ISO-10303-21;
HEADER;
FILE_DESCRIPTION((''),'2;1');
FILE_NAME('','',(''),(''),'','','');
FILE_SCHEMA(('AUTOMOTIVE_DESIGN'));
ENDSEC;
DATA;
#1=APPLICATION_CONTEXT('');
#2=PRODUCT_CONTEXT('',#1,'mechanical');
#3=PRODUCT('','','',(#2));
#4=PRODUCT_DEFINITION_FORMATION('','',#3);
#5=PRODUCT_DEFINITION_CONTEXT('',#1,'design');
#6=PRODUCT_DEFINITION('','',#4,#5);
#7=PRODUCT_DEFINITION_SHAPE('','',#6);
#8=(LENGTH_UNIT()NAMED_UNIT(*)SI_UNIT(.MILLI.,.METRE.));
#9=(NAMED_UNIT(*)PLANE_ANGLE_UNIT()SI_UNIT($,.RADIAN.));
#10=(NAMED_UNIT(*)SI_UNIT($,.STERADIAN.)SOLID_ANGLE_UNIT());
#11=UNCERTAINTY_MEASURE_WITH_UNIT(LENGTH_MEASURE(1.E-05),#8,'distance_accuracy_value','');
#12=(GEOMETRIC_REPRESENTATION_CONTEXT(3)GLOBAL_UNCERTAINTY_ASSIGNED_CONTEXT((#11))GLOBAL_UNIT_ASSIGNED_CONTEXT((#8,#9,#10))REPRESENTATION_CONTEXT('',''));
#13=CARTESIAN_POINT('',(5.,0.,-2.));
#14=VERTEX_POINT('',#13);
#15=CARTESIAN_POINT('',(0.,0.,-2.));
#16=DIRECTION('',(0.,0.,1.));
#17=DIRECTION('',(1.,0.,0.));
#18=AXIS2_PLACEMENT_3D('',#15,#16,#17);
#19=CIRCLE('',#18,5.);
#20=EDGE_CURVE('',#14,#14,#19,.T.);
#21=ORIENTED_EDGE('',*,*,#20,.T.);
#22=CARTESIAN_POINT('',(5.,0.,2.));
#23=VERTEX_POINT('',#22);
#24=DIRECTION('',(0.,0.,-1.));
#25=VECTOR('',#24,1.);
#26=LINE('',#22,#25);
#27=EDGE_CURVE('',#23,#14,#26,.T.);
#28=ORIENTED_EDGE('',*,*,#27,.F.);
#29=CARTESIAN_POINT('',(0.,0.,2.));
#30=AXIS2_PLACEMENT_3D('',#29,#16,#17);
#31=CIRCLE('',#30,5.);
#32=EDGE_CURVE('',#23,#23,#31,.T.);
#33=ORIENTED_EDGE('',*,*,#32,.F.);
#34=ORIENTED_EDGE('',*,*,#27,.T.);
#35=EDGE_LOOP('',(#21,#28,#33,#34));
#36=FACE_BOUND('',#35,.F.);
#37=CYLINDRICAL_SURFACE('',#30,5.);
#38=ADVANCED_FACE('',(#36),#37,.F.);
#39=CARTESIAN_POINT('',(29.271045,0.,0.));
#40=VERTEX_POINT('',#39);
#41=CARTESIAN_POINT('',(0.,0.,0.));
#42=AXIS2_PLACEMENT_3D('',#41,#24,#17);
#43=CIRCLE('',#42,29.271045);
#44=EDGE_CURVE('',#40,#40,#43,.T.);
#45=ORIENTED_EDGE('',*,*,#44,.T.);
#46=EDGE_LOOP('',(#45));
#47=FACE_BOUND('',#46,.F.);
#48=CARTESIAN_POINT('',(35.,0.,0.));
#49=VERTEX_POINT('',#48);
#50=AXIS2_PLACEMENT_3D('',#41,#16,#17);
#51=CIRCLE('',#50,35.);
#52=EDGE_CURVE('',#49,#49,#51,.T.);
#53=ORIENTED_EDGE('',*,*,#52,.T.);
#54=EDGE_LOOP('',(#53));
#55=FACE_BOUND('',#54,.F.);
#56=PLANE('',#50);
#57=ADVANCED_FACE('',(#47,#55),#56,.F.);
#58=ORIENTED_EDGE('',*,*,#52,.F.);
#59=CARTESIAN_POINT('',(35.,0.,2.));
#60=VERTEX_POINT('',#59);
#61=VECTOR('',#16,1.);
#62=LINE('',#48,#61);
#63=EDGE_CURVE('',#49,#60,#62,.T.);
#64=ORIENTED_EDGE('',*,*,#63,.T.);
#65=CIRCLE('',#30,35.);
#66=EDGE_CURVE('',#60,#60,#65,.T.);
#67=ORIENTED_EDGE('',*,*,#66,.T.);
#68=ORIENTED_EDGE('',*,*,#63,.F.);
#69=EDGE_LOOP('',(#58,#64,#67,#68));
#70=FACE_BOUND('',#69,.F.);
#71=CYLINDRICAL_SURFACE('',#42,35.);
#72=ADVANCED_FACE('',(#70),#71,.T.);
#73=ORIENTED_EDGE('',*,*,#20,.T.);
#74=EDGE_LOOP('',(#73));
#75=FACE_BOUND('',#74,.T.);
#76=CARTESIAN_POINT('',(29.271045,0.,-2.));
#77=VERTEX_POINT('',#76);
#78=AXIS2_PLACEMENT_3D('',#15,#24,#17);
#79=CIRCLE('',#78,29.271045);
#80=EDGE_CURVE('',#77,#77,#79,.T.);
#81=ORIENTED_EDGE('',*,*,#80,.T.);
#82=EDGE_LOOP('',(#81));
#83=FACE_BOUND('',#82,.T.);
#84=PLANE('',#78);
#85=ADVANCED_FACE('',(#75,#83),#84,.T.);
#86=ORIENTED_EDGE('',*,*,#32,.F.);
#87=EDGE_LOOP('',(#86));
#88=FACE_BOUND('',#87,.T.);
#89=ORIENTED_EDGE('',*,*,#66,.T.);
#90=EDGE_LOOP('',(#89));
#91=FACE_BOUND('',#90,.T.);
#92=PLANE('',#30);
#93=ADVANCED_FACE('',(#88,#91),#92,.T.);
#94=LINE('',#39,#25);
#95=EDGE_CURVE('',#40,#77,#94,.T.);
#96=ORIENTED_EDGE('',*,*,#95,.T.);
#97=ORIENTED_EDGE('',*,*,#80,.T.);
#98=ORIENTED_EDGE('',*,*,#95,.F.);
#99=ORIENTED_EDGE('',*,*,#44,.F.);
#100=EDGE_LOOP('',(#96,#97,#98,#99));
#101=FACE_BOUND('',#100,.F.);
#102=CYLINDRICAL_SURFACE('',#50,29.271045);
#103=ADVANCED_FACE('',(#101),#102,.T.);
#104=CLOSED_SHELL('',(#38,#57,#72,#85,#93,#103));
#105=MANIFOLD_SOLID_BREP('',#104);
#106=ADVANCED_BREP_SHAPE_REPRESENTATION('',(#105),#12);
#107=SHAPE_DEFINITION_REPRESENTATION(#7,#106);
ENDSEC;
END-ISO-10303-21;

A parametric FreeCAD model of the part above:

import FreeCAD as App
import Part
import Sketcher

doc = App.newDocument("Part")
body = doc.addObject("PartDesign::Body", "Body")

# Sketch on XY plane
sketch1 = body.newObject("Sketcher::SketchObject", "Sketch")
sketch1.AttachmentSupport = (doc.getObject("XY_Plane"), [""])
sketch1.MapMode = "FlatFace"
sketch1.addGeometry(Part.Circle(App.Vector(0, 0, 0), App.Vector(0, 0, 1), 35), False)
sketch1.addConstraint(Sketcher.Constraint("Coincident", 0, 3, -1, 1))
sketch1.addConstraint(Sketcher.Constraint("Diameter", 0, 70.0))
pad1 = body.newObject("PartDesign::Pad", "Pad")
pad1.Profile = sketch1
pad1.Length = 2

# Sketch on XY plane
sketch2 = body.newObject("Sketcher::SketchObject", "Sketch001")
sketch2.AttachmentSupport = (doc.getObject("XY_Plane"), [""])
sketch2.MapMode = "FlatFace"
sketch2.addGeometry(Part.Circle(App.Vector(0, 0, 0), App.Vector(0, 0, 1), 29.271045), False)
sketch2.addConstraint(Sketcher.Constraint("Coincident", 0, 3, -1, 1))
sketch2.addConstraint(Sketcher.Constraint("Diameter", 0, 58.54209))
pad2 = body.newObject("PartDesign::Pad", "Pad001")
pad2.Profile = sketch2
pad2.Length = 2
pad2.Reversed = True

# Sketch on XY plane
sketch3 = body.newObject("Sketcher::SketchObject", "Sketch002")
sketch3.AttachmentSupport = (doc.getObject("XY_Plane"), [""])
sketch3.MapMode = "FlatFace"
sketch3.AttachmentOffset = App.Placement(App.Vector(0, 0, 2), App.Rotation())
sketch3.addGeometry(Part.Circle(App.Vector(0, 0, 0), App.Vector(0, 0, 1), 5), False)
sketch3.addConstraint(Sketcher.Constraint("Coincident", 0, 3, -1, 1))
sketch3.addConstraint(Sketcher.Constraint("Diameter", 0, 10.0))
pocket1 = body.newObject("PartDesign::Pocket", "Pocket")
pocket1.Profile = sketch3
pocket1.Type = "ThroughAll"

doc.recompute()
